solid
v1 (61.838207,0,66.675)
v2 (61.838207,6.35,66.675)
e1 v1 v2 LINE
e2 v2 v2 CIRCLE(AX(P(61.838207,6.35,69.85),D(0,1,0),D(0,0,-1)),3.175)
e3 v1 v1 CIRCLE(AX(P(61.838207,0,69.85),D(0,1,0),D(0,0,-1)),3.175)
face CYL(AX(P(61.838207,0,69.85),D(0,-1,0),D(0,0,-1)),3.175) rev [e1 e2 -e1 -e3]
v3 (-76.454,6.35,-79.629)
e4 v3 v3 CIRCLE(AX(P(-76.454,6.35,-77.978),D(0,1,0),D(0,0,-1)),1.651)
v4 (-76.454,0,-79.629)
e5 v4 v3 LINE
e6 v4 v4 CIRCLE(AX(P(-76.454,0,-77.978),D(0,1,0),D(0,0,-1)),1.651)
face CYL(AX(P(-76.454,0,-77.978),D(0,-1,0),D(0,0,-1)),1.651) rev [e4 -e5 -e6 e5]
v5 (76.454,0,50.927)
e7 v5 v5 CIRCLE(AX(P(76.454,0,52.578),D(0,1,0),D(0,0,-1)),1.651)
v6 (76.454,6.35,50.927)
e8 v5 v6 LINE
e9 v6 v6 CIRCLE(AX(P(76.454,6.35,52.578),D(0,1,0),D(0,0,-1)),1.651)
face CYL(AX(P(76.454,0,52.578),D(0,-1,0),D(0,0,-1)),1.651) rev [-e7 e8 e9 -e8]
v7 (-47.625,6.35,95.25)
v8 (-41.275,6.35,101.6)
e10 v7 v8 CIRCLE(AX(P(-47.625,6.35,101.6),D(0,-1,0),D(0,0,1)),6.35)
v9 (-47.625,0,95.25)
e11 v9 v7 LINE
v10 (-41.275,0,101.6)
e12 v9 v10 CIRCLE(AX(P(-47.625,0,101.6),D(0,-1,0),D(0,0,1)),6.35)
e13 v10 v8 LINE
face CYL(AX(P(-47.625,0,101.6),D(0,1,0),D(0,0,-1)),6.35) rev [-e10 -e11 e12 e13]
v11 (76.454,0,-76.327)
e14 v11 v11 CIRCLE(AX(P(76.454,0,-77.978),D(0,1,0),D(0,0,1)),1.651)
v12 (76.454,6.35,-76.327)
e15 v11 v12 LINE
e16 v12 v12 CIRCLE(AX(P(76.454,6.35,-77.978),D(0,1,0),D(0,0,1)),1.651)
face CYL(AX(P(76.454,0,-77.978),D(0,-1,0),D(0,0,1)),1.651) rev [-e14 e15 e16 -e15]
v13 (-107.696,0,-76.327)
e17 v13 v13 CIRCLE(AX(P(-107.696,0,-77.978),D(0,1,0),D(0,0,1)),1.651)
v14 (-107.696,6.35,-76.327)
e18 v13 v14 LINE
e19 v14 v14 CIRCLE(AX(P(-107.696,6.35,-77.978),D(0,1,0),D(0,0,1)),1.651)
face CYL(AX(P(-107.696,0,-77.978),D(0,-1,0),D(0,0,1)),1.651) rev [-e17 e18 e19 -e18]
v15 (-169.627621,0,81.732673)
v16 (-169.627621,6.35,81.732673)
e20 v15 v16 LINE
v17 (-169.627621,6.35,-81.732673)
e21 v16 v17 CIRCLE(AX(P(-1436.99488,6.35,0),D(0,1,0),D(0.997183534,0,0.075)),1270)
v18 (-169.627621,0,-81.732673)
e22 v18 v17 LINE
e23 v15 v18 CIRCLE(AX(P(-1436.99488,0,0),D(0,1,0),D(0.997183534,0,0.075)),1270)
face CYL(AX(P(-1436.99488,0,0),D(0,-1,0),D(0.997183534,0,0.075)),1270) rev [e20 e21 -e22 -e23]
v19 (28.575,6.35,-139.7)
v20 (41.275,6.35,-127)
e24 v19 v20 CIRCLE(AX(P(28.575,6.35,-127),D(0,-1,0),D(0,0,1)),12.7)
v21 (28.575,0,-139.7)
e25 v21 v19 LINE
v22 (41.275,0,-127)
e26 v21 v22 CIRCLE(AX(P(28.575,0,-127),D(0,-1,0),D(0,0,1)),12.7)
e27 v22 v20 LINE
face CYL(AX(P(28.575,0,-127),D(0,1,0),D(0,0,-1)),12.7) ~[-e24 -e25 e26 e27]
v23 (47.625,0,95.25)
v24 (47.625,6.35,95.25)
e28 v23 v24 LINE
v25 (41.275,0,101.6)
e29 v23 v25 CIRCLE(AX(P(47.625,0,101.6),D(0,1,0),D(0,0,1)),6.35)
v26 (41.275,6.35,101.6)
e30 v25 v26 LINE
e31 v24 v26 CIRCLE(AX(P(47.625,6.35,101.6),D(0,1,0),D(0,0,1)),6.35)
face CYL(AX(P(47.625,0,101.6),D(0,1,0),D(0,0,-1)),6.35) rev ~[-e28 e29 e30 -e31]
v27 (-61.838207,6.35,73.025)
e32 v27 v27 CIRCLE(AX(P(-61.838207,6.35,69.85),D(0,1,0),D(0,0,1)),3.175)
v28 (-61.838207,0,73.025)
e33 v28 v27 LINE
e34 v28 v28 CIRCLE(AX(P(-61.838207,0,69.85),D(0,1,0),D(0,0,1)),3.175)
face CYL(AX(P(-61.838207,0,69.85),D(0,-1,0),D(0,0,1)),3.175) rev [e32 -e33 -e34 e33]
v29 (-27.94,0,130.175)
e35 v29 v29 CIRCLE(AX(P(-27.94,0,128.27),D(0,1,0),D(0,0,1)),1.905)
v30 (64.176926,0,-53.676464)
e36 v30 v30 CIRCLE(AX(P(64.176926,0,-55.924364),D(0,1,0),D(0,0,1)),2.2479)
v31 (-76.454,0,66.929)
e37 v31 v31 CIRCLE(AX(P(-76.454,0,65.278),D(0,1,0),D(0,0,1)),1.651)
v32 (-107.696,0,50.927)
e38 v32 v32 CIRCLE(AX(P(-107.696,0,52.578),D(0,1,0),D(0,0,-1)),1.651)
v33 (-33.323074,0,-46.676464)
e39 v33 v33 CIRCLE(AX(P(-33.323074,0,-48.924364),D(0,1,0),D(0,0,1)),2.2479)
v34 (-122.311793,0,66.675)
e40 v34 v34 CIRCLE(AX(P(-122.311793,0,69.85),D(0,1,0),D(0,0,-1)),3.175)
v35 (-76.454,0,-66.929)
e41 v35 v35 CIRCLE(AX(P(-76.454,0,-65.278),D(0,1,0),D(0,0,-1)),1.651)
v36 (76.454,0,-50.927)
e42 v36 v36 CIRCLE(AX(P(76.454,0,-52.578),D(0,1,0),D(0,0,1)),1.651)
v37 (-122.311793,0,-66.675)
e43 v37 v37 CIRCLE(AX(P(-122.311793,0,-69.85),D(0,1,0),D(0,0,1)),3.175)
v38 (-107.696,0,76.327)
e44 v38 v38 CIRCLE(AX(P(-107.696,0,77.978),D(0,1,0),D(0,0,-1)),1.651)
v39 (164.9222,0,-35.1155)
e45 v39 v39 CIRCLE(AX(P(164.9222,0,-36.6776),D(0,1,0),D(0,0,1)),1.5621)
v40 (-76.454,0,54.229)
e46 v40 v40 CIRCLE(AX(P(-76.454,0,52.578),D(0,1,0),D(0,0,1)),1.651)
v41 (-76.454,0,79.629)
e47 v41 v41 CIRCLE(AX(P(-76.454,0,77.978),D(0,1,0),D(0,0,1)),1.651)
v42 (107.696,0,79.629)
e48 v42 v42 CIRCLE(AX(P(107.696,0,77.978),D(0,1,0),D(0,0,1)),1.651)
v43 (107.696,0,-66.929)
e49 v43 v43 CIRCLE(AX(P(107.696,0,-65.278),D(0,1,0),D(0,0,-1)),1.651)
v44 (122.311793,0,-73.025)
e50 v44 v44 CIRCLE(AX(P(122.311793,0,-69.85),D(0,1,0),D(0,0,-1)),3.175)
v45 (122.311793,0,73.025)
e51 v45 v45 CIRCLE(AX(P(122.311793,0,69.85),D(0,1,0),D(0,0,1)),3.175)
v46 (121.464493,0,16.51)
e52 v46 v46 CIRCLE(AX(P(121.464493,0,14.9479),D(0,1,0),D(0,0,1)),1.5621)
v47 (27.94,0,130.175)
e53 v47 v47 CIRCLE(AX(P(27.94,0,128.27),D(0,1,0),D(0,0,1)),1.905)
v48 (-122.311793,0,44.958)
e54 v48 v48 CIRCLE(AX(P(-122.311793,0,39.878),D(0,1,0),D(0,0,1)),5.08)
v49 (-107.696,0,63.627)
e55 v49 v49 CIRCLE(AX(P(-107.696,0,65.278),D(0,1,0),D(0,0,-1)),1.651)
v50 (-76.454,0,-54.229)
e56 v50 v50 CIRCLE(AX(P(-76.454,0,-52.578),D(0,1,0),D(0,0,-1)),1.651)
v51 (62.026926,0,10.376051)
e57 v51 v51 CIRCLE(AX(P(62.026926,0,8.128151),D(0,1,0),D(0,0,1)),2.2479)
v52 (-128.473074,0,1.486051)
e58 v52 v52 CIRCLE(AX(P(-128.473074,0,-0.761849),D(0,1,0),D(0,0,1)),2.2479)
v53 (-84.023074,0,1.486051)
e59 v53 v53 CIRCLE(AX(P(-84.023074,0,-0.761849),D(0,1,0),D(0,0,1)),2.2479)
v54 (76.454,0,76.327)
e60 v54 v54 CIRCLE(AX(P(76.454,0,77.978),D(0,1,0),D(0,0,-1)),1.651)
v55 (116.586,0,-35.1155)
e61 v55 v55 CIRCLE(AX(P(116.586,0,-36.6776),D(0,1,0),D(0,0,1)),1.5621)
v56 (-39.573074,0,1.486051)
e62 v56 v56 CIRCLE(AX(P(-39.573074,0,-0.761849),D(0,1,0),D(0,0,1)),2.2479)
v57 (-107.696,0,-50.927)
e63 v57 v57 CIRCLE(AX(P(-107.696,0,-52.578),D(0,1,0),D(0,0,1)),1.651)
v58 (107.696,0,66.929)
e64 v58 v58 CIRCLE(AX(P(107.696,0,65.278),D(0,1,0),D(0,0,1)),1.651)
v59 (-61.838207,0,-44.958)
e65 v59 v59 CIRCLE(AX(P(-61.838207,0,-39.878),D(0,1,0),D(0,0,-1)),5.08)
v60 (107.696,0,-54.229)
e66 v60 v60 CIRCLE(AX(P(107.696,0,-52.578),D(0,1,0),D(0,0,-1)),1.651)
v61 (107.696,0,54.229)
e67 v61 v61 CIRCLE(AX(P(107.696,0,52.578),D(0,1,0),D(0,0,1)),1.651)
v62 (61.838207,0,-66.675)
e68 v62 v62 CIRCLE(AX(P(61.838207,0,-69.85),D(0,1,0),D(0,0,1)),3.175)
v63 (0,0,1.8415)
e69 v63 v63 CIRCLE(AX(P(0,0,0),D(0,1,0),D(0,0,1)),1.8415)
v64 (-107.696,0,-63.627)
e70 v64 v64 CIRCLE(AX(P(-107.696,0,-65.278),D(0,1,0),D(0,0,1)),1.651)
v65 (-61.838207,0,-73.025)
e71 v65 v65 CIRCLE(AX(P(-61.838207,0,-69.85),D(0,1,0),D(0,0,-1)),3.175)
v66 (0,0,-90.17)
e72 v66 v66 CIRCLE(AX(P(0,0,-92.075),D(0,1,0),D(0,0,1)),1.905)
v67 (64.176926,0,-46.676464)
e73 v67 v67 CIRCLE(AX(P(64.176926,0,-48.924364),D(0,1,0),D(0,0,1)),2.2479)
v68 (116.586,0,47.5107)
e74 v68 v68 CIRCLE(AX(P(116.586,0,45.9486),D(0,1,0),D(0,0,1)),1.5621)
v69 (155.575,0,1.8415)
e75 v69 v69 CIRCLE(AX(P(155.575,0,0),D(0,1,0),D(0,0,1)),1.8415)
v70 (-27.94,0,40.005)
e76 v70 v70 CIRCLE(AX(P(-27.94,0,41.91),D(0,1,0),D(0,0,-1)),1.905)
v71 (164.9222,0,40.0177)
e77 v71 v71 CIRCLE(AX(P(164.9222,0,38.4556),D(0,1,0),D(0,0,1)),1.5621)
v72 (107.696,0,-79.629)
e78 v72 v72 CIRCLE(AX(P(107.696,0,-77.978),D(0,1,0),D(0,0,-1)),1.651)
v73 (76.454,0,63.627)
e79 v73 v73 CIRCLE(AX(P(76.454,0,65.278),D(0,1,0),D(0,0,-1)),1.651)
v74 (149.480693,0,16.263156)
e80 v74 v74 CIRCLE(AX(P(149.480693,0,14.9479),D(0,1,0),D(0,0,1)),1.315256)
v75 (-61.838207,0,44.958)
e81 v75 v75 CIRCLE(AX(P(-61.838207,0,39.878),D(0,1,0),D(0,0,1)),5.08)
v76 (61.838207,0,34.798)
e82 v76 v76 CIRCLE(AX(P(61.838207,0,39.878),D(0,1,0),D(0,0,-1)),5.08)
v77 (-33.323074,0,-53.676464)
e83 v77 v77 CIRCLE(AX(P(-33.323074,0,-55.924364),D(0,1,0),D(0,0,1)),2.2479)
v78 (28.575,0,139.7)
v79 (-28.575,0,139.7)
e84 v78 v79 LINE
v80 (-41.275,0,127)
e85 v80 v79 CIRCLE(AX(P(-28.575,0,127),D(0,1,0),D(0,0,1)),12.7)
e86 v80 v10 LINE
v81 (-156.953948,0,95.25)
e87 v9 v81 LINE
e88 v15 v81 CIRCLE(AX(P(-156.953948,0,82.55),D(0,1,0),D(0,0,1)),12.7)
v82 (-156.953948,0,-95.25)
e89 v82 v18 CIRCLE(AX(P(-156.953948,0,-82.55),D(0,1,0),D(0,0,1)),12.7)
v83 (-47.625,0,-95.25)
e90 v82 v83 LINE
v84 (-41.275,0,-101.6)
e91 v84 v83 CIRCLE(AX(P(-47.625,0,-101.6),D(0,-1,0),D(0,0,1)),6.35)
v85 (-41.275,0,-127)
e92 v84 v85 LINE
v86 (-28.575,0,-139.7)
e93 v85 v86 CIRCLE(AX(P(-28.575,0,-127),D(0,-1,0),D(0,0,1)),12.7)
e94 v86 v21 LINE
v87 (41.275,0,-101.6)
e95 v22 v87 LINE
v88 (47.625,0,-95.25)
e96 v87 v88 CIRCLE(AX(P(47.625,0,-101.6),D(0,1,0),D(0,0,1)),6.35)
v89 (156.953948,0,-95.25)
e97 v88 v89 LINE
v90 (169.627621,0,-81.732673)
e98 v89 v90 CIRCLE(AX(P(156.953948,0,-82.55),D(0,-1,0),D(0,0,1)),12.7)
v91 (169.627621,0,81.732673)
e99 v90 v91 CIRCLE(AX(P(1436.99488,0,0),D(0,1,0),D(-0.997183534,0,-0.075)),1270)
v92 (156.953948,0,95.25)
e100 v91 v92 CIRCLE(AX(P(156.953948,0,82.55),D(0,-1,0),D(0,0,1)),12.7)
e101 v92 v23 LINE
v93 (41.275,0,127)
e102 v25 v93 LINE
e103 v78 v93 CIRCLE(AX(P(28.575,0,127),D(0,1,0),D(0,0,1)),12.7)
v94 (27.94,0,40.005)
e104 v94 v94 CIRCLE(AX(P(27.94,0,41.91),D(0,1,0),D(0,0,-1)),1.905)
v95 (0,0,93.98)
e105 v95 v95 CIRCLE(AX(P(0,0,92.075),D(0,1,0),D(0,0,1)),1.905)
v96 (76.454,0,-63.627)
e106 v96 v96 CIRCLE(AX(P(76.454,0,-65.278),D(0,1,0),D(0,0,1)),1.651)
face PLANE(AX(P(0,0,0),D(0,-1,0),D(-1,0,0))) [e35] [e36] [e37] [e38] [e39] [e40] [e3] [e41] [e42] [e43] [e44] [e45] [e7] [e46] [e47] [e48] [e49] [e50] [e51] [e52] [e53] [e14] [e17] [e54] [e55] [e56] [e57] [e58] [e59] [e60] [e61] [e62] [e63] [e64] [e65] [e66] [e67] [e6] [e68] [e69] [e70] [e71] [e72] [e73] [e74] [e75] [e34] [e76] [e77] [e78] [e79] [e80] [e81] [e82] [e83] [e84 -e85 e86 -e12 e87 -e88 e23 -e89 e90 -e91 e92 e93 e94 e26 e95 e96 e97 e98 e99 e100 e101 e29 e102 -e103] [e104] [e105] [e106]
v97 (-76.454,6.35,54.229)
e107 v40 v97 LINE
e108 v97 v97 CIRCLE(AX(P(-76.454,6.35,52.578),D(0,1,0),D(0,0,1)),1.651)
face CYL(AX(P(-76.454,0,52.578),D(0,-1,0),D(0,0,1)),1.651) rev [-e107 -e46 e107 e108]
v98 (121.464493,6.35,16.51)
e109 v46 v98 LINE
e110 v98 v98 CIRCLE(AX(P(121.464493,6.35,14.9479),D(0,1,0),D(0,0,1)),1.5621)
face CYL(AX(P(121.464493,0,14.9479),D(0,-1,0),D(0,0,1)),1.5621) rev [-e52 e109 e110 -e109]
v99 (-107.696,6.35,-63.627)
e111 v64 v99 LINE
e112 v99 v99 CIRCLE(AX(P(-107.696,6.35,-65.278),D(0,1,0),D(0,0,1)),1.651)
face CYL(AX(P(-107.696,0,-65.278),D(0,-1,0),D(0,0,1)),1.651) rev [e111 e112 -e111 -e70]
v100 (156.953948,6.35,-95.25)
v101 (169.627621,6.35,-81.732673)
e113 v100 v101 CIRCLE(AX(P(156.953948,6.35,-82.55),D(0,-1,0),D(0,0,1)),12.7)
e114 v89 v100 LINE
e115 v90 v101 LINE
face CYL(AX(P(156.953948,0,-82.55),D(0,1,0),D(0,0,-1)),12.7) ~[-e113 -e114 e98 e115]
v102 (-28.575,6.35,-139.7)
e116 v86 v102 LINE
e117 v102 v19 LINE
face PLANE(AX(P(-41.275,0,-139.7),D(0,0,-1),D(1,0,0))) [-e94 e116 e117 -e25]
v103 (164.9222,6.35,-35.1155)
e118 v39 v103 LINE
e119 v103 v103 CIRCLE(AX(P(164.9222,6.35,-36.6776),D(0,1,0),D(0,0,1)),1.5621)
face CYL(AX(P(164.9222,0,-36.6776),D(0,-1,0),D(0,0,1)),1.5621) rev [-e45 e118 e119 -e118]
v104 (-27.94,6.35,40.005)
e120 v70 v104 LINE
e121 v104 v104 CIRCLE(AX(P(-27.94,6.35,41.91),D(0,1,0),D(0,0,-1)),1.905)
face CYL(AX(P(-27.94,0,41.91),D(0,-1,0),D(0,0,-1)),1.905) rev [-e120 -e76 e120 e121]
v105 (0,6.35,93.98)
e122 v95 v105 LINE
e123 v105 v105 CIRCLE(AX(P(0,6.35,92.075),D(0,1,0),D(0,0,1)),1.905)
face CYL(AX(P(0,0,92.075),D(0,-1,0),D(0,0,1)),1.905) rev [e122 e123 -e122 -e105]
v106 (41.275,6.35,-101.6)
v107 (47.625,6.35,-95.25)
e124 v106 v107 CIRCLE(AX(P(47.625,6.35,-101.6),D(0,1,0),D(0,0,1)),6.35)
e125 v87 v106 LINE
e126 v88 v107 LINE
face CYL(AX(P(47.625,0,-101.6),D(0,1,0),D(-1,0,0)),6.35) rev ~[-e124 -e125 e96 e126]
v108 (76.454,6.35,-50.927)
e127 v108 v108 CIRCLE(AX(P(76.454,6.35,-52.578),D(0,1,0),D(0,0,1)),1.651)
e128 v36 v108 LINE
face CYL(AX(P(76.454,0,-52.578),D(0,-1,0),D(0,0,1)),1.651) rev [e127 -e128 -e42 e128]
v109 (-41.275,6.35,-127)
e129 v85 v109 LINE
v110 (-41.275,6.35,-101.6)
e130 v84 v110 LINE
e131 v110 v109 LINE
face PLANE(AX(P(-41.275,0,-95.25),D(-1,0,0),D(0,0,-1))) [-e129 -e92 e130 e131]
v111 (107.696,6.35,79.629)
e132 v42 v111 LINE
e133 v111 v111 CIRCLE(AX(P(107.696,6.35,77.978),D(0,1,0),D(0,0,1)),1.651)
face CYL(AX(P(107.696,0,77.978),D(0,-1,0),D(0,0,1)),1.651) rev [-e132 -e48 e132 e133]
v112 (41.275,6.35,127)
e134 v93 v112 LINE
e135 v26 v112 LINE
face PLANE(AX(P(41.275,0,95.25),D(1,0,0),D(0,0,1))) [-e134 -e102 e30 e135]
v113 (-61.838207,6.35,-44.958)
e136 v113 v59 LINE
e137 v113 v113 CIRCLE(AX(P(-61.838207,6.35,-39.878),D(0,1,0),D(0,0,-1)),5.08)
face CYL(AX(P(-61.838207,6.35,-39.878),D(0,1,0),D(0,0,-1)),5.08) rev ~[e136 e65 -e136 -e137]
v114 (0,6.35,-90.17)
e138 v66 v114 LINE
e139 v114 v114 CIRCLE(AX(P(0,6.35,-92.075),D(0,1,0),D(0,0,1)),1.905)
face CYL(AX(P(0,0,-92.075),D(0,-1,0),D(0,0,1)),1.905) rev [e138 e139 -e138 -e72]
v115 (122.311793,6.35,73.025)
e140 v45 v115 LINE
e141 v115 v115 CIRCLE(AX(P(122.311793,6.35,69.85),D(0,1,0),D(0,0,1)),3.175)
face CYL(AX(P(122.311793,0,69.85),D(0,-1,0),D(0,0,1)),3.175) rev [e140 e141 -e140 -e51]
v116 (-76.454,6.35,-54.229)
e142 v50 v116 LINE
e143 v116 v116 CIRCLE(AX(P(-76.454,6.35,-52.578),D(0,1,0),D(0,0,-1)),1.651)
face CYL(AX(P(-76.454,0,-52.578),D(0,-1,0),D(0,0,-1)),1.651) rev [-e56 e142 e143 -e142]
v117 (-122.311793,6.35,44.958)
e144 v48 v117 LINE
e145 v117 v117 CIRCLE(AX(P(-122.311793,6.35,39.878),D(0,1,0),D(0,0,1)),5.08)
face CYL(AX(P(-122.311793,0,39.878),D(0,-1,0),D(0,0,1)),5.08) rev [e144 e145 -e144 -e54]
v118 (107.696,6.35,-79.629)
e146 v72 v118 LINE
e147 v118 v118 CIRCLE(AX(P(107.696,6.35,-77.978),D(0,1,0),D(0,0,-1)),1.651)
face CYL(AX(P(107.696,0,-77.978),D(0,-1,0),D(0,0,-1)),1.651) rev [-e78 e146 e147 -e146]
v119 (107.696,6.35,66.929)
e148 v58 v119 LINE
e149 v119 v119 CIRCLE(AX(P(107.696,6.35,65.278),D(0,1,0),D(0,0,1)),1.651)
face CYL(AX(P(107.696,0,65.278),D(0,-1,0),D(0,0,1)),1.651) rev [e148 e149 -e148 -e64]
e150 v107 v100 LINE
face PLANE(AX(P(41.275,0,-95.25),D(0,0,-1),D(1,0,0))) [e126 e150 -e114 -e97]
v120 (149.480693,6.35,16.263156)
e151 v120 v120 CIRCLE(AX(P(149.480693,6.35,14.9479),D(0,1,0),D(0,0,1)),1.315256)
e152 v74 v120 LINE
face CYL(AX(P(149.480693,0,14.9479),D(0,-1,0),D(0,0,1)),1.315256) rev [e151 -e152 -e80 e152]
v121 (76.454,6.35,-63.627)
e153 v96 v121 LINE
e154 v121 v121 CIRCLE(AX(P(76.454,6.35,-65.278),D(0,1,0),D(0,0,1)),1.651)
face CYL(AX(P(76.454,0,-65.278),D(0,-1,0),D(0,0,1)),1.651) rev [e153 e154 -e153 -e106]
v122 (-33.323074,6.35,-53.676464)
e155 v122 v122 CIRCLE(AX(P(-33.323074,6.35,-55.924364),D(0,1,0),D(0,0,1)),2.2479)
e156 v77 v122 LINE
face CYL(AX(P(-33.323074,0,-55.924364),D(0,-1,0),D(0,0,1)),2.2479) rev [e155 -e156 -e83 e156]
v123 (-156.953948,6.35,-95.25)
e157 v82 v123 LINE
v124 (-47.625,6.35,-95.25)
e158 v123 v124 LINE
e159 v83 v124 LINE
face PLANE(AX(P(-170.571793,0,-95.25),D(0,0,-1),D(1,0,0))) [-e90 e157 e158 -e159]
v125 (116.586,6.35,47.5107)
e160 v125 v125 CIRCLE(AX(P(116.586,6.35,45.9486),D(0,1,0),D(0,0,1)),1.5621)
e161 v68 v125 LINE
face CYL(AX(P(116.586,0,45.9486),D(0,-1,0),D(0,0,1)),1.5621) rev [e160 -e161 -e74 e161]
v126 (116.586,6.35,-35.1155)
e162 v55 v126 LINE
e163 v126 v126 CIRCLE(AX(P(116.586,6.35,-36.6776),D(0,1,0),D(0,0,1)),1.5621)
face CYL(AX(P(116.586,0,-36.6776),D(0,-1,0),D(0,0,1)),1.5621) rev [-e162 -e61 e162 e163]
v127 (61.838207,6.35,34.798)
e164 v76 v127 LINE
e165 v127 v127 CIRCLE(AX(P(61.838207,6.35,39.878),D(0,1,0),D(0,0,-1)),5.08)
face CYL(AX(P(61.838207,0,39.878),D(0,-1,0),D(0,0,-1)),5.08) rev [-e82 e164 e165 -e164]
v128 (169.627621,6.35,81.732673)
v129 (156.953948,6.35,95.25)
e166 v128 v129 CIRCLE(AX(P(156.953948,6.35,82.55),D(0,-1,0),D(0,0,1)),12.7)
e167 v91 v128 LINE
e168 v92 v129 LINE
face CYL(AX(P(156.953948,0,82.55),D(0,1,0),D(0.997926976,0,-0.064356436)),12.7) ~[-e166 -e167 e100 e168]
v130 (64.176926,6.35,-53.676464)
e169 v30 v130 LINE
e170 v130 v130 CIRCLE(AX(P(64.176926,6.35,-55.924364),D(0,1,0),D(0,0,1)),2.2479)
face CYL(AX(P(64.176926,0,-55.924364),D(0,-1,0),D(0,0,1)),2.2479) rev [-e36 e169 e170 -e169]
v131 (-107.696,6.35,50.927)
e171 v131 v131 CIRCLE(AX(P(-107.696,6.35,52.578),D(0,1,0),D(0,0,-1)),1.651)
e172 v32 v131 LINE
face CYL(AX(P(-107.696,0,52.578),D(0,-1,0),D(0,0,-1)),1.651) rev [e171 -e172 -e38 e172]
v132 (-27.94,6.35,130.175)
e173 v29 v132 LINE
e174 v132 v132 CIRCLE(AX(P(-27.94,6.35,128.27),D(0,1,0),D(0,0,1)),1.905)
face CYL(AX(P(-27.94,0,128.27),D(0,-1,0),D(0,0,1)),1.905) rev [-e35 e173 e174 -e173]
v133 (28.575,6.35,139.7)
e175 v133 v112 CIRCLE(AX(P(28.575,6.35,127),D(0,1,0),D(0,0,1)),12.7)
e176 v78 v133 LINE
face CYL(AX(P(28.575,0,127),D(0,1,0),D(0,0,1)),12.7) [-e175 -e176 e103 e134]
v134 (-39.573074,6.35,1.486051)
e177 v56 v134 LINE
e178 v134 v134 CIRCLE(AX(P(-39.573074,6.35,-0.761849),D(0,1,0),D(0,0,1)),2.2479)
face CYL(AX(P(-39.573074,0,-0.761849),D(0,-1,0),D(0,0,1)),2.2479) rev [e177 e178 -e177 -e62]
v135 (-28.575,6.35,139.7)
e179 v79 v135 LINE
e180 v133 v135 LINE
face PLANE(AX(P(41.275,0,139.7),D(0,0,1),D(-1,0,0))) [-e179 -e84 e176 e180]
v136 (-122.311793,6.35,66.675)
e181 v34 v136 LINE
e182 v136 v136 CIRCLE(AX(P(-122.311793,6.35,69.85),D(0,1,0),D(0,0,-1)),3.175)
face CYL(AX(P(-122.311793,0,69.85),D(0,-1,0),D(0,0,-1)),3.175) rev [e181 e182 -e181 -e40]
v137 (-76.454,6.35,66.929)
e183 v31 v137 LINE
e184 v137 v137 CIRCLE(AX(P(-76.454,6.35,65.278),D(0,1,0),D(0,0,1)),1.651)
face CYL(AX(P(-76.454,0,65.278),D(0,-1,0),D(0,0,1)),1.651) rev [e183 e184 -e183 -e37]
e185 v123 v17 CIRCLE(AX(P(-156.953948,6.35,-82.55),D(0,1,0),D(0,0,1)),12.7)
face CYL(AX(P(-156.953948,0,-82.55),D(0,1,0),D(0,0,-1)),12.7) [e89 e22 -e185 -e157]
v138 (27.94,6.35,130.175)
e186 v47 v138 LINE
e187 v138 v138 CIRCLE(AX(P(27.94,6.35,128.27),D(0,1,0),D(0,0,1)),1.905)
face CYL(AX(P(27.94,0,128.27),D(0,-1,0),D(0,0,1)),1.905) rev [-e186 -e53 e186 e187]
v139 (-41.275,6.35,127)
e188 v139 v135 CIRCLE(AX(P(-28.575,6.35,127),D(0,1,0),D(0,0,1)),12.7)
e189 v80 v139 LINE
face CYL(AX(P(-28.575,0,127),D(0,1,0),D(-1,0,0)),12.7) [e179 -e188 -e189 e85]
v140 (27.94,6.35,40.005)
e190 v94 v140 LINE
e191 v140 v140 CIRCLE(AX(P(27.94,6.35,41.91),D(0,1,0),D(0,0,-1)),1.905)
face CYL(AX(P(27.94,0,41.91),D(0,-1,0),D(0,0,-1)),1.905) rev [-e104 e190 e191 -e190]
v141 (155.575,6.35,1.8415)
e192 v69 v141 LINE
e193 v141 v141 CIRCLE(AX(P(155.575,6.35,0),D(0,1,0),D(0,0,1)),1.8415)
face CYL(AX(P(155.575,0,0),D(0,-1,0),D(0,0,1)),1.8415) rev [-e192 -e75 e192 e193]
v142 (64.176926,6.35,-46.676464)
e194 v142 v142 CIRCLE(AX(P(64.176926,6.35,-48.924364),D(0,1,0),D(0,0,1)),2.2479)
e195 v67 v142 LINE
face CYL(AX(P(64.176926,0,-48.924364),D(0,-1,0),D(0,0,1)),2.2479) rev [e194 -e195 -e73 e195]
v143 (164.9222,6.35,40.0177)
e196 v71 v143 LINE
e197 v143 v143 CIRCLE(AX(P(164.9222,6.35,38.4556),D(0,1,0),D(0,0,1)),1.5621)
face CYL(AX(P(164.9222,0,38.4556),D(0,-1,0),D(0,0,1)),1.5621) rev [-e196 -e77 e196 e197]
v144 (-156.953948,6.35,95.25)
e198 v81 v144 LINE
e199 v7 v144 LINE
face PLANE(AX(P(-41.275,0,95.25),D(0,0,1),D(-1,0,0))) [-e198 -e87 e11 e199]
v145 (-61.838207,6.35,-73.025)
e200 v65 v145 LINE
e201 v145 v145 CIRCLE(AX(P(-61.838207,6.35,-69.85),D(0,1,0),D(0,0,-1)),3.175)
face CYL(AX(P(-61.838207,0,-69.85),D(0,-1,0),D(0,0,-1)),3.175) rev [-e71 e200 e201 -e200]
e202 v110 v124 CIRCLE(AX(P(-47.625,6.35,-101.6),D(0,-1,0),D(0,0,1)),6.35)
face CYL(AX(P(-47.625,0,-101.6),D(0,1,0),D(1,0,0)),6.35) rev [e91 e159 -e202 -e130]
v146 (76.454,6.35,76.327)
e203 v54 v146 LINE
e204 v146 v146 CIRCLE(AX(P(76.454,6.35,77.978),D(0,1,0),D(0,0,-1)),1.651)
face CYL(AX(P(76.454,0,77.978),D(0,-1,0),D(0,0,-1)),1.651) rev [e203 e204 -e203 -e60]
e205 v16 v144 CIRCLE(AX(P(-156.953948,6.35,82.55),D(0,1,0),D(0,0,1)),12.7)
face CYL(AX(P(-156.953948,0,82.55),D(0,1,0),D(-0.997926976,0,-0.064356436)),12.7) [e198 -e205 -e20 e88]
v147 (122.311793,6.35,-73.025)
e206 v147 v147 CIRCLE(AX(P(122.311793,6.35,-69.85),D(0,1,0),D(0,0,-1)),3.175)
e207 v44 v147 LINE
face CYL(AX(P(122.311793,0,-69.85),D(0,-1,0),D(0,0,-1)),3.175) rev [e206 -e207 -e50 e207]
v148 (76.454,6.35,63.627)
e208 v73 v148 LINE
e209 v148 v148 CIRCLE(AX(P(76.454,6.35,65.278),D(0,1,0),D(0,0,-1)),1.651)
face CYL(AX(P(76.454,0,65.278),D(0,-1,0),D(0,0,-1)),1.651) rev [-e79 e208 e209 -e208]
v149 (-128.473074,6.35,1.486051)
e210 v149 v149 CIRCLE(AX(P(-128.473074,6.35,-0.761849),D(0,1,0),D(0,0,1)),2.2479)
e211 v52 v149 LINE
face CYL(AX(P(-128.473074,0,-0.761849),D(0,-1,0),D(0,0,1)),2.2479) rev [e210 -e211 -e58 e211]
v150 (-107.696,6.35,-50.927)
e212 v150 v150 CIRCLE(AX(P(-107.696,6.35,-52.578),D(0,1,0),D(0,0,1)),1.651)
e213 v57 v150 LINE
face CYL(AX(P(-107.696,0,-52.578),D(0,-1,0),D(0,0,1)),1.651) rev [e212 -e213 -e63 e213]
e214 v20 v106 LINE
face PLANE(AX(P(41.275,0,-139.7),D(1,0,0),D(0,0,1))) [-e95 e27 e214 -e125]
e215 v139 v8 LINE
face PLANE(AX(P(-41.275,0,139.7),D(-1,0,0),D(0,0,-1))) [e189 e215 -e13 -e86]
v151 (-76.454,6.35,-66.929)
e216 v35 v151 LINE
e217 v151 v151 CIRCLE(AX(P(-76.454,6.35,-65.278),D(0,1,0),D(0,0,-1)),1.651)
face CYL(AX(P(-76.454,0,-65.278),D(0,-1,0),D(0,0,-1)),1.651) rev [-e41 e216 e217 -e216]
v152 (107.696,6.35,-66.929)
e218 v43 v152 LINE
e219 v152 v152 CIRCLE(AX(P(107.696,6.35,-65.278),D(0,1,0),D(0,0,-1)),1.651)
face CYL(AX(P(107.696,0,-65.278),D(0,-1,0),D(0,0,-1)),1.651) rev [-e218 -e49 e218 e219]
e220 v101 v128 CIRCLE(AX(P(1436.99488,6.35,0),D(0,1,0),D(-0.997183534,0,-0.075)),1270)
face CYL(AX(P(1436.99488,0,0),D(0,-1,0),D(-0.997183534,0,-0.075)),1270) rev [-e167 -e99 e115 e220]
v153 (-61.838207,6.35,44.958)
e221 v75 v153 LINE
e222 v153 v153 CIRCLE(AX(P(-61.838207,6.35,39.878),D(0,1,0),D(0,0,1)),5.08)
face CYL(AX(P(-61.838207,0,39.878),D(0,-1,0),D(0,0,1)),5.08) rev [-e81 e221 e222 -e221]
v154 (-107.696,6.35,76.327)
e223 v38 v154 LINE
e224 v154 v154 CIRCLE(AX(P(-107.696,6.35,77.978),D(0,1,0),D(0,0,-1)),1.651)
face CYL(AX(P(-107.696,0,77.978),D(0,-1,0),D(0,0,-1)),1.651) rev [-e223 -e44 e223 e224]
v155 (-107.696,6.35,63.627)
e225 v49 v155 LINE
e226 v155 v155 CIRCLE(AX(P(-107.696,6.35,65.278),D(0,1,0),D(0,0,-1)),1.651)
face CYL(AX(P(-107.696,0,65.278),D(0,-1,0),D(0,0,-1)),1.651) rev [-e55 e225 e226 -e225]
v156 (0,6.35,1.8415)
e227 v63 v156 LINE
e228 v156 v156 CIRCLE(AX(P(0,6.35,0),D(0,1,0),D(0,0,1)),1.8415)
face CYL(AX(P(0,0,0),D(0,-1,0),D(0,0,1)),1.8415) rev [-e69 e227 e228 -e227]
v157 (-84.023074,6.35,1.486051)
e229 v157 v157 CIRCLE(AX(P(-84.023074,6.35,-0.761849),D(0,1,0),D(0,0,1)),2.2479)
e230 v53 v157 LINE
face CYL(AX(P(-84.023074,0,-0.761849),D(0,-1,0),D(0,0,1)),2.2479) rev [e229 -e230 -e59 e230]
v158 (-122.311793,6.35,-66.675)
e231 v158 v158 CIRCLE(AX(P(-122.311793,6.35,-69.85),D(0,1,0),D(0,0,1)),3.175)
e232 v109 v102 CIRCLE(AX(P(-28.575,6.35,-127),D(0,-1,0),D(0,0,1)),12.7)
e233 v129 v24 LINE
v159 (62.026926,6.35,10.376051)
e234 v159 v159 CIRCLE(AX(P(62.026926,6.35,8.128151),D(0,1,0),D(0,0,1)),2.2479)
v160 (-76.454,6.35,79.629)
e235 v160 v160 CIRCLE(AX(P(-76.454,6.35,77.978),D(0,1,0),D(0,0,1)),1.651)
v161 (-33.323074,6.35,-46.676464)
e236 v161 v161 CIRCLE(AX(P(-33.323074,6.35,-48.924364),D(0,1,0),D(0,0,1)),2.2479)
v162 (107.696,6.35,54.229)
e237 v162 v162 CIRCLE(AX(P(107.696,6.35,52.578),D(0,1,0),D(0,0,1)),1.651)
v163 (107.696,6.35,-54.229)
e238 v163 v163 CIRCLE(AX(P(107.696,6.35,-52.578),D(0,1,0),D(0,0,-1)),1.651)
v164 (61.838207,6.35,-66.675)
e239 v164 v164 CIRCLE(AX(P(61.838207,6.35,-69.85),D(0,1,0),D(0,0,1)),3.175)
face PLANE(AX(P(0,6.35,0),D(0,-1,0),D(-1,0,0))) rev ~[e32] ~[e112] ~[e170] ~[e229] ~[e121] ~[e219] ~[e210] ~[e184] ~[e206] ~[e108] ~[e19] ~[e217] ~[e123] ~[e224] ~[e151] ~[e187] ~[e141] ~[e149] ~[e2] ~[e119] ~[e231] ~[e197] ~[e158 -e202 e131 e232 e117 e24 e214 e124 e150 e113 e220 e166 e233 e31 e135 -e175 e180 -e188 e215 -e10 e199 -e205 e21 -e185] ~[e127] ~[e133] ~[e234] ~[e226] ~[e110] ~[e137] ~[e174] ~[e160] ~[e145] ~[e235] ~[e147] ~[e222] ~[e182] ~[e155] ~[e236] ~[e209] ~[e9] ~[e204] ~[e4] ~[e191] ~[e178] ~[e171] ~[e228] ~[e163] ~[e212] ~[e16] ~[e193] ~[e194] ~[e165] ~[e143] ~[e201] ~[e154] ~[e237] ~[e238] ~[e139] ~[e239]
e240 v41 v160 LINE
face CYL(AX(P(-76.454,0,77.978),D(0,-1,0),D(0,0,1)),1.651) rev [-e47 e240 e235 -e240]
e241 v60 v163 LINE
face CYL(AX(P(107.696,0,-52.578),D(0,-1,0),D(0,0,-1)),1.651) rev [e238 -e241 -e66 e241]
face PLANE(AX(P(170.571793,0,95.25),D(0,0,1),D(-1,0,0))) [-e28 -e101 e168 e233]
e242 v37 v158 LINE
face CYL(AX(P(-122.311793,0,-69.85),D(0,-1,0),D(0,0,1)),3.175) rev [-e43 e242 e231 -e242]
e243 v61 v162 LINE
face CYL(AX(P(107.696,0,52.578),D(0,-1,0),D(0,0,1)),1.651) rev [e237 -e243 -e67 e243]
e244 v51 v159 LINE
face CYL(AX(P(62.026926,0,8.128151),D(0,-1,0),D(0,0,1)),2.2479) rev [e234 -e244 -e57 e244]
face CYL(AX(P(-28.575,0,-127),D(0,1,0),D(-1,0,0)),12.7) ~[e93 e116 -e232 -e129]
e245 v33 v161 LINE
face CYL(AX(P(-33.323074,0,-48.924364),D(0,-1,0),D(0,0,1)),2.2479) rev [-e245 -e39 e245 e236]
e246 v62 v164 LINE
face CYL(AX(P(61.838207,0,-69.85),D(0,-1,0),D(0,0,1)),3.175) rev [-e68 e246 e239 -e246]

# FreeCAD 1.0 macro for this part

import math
import FreeCAD as App
import Part
import Sketcher
from FreeCAD import Vector
Q = App.Units.Quantity


def edges_at(feature, points):
    """Names of the edges that pass closest to the given points."""
    edges = feature.Shape.Edges
    near = lambda p: min(range(len(edges)), key=lambda i: edges[i].distToShape(Part.Vertex(*p))[0])
    return sorted({f"Edge{near(p) + 1}" for p in points})

doc = App.newDocument("Part")
body = doc.addObject("PartDesign::Body", "Body")

sketch1 = body.newObject("Sketcher::SketchObject", "Sketch")
sketch1.AttachmentSupport = (doc.getObject("XZ_Plane"), [""])
sketch1.MapMode = "FlatFace"
sketch1.addGeometry(Part.LineSegment(Vector(-41.275, -139.7, 0), Vector(-41.275, -95.25, 0)), False)
sketch1.addGeometry(Part.LineSegment(Vector(-41.275, -95.25, 0), Vector(-170.571793, -95.25, 0)), False)
sketch1.addGeometry(Part.ArcOfCircle(Part.Circle(Vector(-1436.99488, 0, 0), Vector(0, 0, 1), 1270), math.radians(-4.301222), math.radians(4.301222)), False)
sketch1.addGeometry(Part.LineSegment(Vector(-170.571793, 95.25, 0), Vector(-41.275, 95.25, 0)), False)
sketch1.addGeometry(Part.LineSegment(Vector(-41.275, 95.25, 0), Vector(-41.275, 139.7, 0)), False)
sketch1.addGeometry(Part.LineSegment(Vector(-41.275, 139.7, 0), Vector(41.275, 139.7, 0)), False)
sketch1.addGeometry(Part.LineSegment(Vector(41.275, 139.7, 0), Vector(41.275, 95.25, 0)), False)
sketch1.addGeometry(Part.LineSegment(Vector(41.275, 95.25, 0), Vector(170.571793, 95.25, 0)), False)
sketch1.addGeometry(Part.ArcOfCircle(Part.Circle(Vector(1436.99488, 0, 0), Vector(0, 0, 1), 1270), math.radians(175.698778), math.radians(184.301222)), False)
sketch1.addGeometry(Part.LineSegment(Vector(170.571793, -95.25, 0), Vector(41.275, -95.25, 0)), False)
sketch1.addGeometry(Part.LineSegment(Vector(41.275, -95.25, 0), Vector(41.275, -139.7, 0)), False)
sketch1.addGeometry(Part.LineSegment(Vector(41.275, -139.7, 0), Vector(-41.275, -139.7, 0)), False)
sketch1.addGeometry(Part.Circle(Vector(107.696, 77.978, 0), Vector(0, 0, 1), 1.651), False)
sketch1.addGeometry(Part.Circle(Vector(27.94, 128.27, 0), Vector(0, 0, 1), 1.905), False)
sketch1.addGeometry(Part.Circle(Vector(76.454, 77.978, 0), Vector(0, 0, 1), 1.651), False)
sketch1.addGeometry(Part.Circle(Vector(122.311793, 69.85, 0), Vector(0, 0, 1), 3.175), False)
sketch1.addGeometry(Part.Circle(Vector(107.696, 65.278, 0), Vector(0, 0, 1), 1.651), False)
sketch1.addGeometry(Part.Circle(Vector(107.696, 52.578, 0), Vector(0, 0, 1), 1.651), False)
sketch1.addGeometry(Part.Circle(Vector(164.9222, 38.4556, 0), Vector(0, 0, 1), 1.5621), False)
sketch1.addGeometry(Part.Circle(Vector(116.586, 45.9486, 0), Vector(0, 0, 1), 1.5621), False)
sketch1.addGeometry(Part.Circle(Vector(76.454, 65.278, 0), Vector(0, 0, 1), 1.651), False)
sketch1.addGeometry(Part.Circle(Vector(61.838207, 69.85, 0), Vector(0, 0, 1), 3.175), False)
sketch1.addGeometry(Part.Circle(Vector(76.454, 52.578, 0), Vector(0, 0, 1), 1.651), False)
sketch1.addGeometry(Part.Circle(Vector(61.838207, 39.878, 0), Vector(0, 0, 1), 5.08), False)
sketch1.addGeometry(Part.Circle(Vector(27.94, 41.91, 0), Vector(0, 0, 1), 1.905), False)
sketch1.addGeometry(Part.Circle(Vector(-27.94, 128.27, 0), Vector(0, 0, 1), 1.905), False)
sketch1.addGeometry(Part.Circle(Vector(0, 92.075, 0), Vector(0, 0, 1), 1.905), False)
sketch1.addGeometry(Part.Circle(Vector(-76.454, 77.978, 0), Vector(0, 0, 1), 1.651), False)
sketch1.addGeometry(Part.Circle(Vector(-107.696, 77.978, 0), Vector(0, 0, 1), 1.651), False)
sketch1.addGeometry(Part.Circle(Vector(-27.94, 41.91, 0), Vector(0, 0, 1), 1.905), False)
sketch1.addGeometry(Part.Circle(Vector(-61.838207, 69.85, 0), Vector(0, 0, 1), 3.175), False)
sketch1.addGeometry(Part.Circle(Vector(-76.454, 65.278, 0), Vector(0, 0, 1), 1.651), False)
sketch1.addGeometry(Part.Circle(Vector(-76.454, 52.578, 0), Vector(0, 0, 1), 1.651), False)
sketch1.addGeometry(Part.Circle(Vector(-107.696, 65.278, 0), Vector(0, 0, 1), 1.651), False)
sketch1.addGeometry(Part.Circle(Vector(-122.311793, 69.85, 0), Vector(0, 0, 1), 3.175), False)
sketch1.addGeometry(Part.Circle(Vector(-107.696, 52.578, 0), Vector(0, 0, 1), 1.651), False)
sketch1.addGeometry(Part.Circle(Vector(-61.838207, 39.878, 0), Vector(0, 0, 1), 5.08), False)
sketch1.addGeometry(Part.Circle(Vector(-122.311793, 39.878, 0), Vector(0, 0, 1), 5.08), False)
sketch1.addGeometry(Part.Circle(Vector(149.480693, 14.9479, 0), Vector(0, 0, 1), 1.315256), False)
sketch1.addGeometry(Part.Circle(Vector(155.575, 0, 0), Vector(0, 0, 1), 1.8415), False)
sketch1.addGeometry(Part.Circle(Vector(121.464493, 14.9479, 0), Vector(0, 0, 1), 1.5621), False)
sketch1.addGeometry(Part.Circle(Vector(164.9222, -36.6776, 0), Vector(0, 0, 1), 1.5621), False)
sketch1.addGeometry(Part.Circle(Vector(116.586, -36.6776, 0), Vector(0, 0, 1), 1.5621), False)
sketch1.addGeometry(Part.Circle(Vector(62.026926, 8.128151, 0), Vector(0, 0, 1), 2.2479), False)
sketch1.addGeometry(Part.Circle(Vector(107.696, -52.578, 0), Vector(0, 0, 1), 1.651), False)
sketch1.addGeometry(Part.Circle(Vector(107.696, -65.278, 0), Vector(0, 0, 1), 1.651), False)
sketch1.addGeometry(Part.Circle(Vector(122.311793, -69.85, 0), Vector(0, 0, 1), 3.175), False)
sketch1.addGeometry(Part.Circle(Vector(107.696, -77.978, 0), Vector(0, 0, 1), 1.651), False)
sketch1.addGeometry(Part.Circle(Vector(64.176926, -48.924364, 0), Vector(0, 0, 1), 2.2479), False)
sketch1.addGeometry(Part.Circle(Vector(76.454, -52.578, 0), Vector(0, 0, 1), 1.651), False)
sketch1.addGeometry(Part.Circle(Vector(76.454, -65.278, 0), Vector(0, 0, 1), 1.651), False)
sketch1.addGeometry(Part.Circle(Vector(64.176926, -55.924364, 0), Vector(0, 0, 1), 2.2479), False)
sketch1.addGeometry(Part.Circle(Vector(76.454, -77.978, 0), Vector(0, 0, 1), 1.651), False)
sketch1.addGeometry(Part.Circle(Vector(61.838207, -69.85, 0), Vector(0, 0, 1), 3.175), False)
sketch1.addGeometry(Part.Circle(Vector(0, 0, 0), Vector(0, 0, 1), 1.8415), False)
sketch1.addGeometry(Part.Circle(Vector(-39.573074, -0.761849, 0), Vector(0, 0, 1), 2.2479), False)
sketch1.addGeometry(Part.Circle(Vector(-84.023074, -0.761849, 0), Vector(0, 0, 1), 2.2479), False)
sketch1.addGeometry(Part.Circle(Vector(-128.473074, -0.761849, 0), Vector(0, 0, 1), 2.2479), False)
sketch1.addGeometry(Part.Circle(Vector(-33.323074, -48.924364, 0), Vector(0, 0, 1), 2.2479), False)
sketch1.addGeometry(Part.Circle(Vector(-33.323074, -55.924364, 0), Vector(0, 0, 1), 2.2479), False)
sketch1.addGeometry(Part.Circle(Vector(0, -92.075, 0), Vector(0, 0, 1), 1.905), False)
sketch1.addGeometry(Part.Circle(Vector(-76.454, -52.578, 0), Vector(0, 0, 1), 1.651), False)
sketch1.addGeometry(Part.Circle(Vector(-76.454, -65.278, 0), Vector(0, 0, 1), 1.651), False)
sketch1.addGeometry(Part.Circle(Vector(-107.696, -52.578, 0), Vector(0, 0, 1), 1.651), False)
sketch1.addGeometry(Part.Circle(Vector(-107.696, -65.278, 0), Vector(0, 0, 1), 1.651), False)
sketch1.addGeometry(Part.Circle(Vector(-61.838207, -69.85, 0), Vector(0, 0, 1), 3.175), False)
sketch1.addGeometry(Part.Circle(Vector(-76.454, -77.978, 0), Vector(0, 0, 1), 1.651), False)
sketch1.addGeometry(Part.Circle(Vector(-107.696, -77.978, 0), Vector(0, 0, 1), 1.651), False)
sketch1.addGeometry(Part.Circle(Vector(-122.311793, -69.85, 0), Vector(0, 0, 1), 3.175), False)
sketch1.addConstraint(Sketcher.Constraint("Coincident", 0, 2, 1, 1))
sketch1.addConstraint(Sketcher.Constraint("Coincident", 1, 2, 2, 1))
sketch1.addConstraint(Sketcher.Constraint("Coincident", 2, 2, 3, 1))
sketch1.addConstraint(Sketcher.Constraint("Coincident", 3, 2, 4, 1))
sketch1.addConstraint(Sketcher.Constraint("Coincident", 4, 2, 5, 1))
sketch1.addConstraint(Sketcher.Constraint("Coincident", 5, 2, 6, 1))
sketch1.addConstraint(Sketcher.Constraint("Coincident", 6, 2, 7, 1))
sketch1.addConstraint(Sketcher.Constraint("Coincident", 7, 2, 8, 1))
sketch1.addConstraint(Sketcher.Constraint("Coincident", 8, 2, 9, 1))
sketch1.addConstraint(Sketcher.Constraint("Coincident", 9, 2, 10, 1))
sketch1.addConstraint(Sketcher.Constraint("Coincident", 10, 2, 11, 1))
sketch1.addConstraint(Sketcher.Constraint("Coincident", 11, 2, 0, 1))
sketch1.addConstraint(Sketcher.Constraint("Vertical", 0))
sketch1.addConstraint(Sketcher.Constraint("Horizontal", 1))
sketch1.addConstraint(Sketcher.Constraint("Horizontal", 3))
sketch1.addConstraint(Sketcher.Constraint("Vertical", 4))
sketch1.addConstraint(Sketcher.Constraint("Horizontal", 5))
sketch1.addConstraint(Sketcher.Constraint("Vertical", 6))
sketch1.addConstraint(Sketcher.Constraint("Horizontal", 7))
sketch1.addConstraint(Sketcher.Constraint("Horizontal", 9))
sketch1.addConstraint(Sketcher.Constraint("Vertical", 10))
sketch1.addConstraint(Sketcher.Constraint("Horizontal", 11))
sketch1.addConstraint(Sketcher.Constraint("Coincident", 54, 3, -1, 1))
sketch1.addConstraint(Sketcher.Constraint("Equal", 2, 8))
sketch1.addConstraint(Sketcher.Constraint("Equal", 12, 14))
sketch1.addConstraint(Sketcher.Constraint("Equal", 14, 16))
sketch1.addConstraint(Sketcher.Constraint("Equal", 16, 17))
sketch1.addConstraint(Sketcher.Constraint("Equal", 18, 19))
sketch1.addConstraint(Sketcher.Constraint("Equal", 17, 20))
sketch1.addConstraint(Sketcher.Constraint("Equal", 15, 21))
sketch1.addConstraint(Sketcher.Constraint("Equal", 20, 22))
sketch1.addConstraint(Sketcher.Constraint("Equal", 13, 24))
sketch1.addConstraint(Sketcher.Constraint("Equal", 24, 25))
sketch1.addConstraint(Sketcher.Constraint("Equal", 25, 26))
sketch1.addConstraint(Sketcher.Constraint("Equal", 22, 27))
sketch1.addConstraint(Sketcher.Constraint("Equal", 27, 28))
sketch1.addConstraint(Sketcher.Constraint("Equal", 26, 29))
sketch1.addConstraint(Sketcher.Constraint("Equal", 21, 30))
sketch1.addConstraint(Sketcher.Constraint("Equal", 28, 31))
sketch1.addConstraint(Sketcher.Constraint("Equal", 31, 32))
sketch1.addConstraint(Sketcher.Constraint("Equal", 32, 33))
sketch1.addConstraint(Sketcher.Constraint("Equal", 30, 34))
sketch1.addConstraint(Sketcher.Constraint("Equal", 33, 35))
sketch1.addConstraint(Sketcher.Constraint("Equal", 23, 36))
sketch1.addConstraint(Sketcher.Constraint("Equal", 36, 37))
sketch1.addConstraint(Sketcher.Constraint("Equal", 19, 40))
sketch1.addConstraint(Sketcher.Constraint("Equal", 40, 41))
sketch1.addConstraint(Sketcher.Constraint("Equal", 41, 42))
sketch1.addConstraint(Sketcher.Constraint("Equal", 35, 44))
sketch1.addConstraint(Sketcher.Constraint("Equal", 44, 45))
sketch1.addConstraint(Sketcher.Constraint("Equal", 34, 46))
sketch1.addConstraint(Sketcher.Constraint("Equal", 45, 47))
sketch1.addConstraint(Sketcher.Constraint("Equal", 43, 48))
sketch1.addConstraint(Sketcher.Constraint("Equal", 47, 49))
sketch1.addConstraint(Sketcher.Constraint("Equal", 49, 50))
sketch1.addConstraint(Sketcher.Constraint("Equal", 48, 51))
sketch1.addConstraint(Sketcher.Constraint("Equal", 50, 52))
sketch1.addConstraint(Sketcher.Constraint("Equal", 46, 53))
sketch1.addConstraint(Sketcher.Constraint("Equal", 39, 54))
sketch1.addConstraint(Sketcher.Constraint("Equal", 51, 55))
sketch1.addConstraint(Sketcher.Constraint("Equal", 55, 56))
sketch1.addConstraint(Sketcher.Constraint("Equal", 56, 57))
sketch1.addConstraint(Sketcher.Constraint("Equal", 57, 58))
sketch1.addConstraint(Sketcher.Constraint("Equal", 58, 59))
sketch1.addConstraint(Sketcher.Constraint("Equal", 29, 60))
sketch1.addConstraint(Sketcher.Constraint("Equal", 52, 61))
sketch1.addConstraint(Sketcher.Constraint("Equal", 61, 62))
sketch1.addConstraint(Sketcher.Constraint("Equal", 62, 63))
sketch1.addConstraint(Sketcher.Constraint("Equal", 63, 64))
sketch1.addConstraint(Sketcher.Constraint("Equal", 53, 65))
sketch1.addConstraint(Sketcher.Constraint("Equal", 64, 66))
sketch1.addConstraint(Sketcher.Constraint("Equal", 66, 67))
sketch1.addConstraint(Sketcher.Constraint("Equal", 65, 68))
sketch1.addConstraint(Sketcher.Constraint("Symmetric", 2, 3, 8, 3, -1, 1))
sketch1.addConstraint(Sketcher.Constraint("Symmetric", 35, 3, 44, 3, -1, 1))
sketch1.addConstraint(Sketcher.Constraint("Symmetric", 33, 3, 45, 3, -1, 1))
sketch1.addConstraint(Sketcher.Constraint("Symmetric", 34, 3, 46, 3, -1, 1))
sketch1.addConstraint(Sketcher.Constraint("Symmetric", 28, 3, 47, 3, -1, 1))
sketch1.addConstraint(Sketcher.Constraint("Symmetric", 32, 3, 49, 3, -1, 1))
sketch1.addConstraint(Sketcher.Constraint("Symmetric", 31, 3, 50, 3, -1, 1))
sketch1.addConstraint(Sketcher.Constraint("Symmetric", 27, 3, 52, 3, -1, 1))
sketch1.addConstraint(Sketcher.Constraint("Symmetric", 30, 3, 53, 3, -1, 1))
sketch1.addConstraint(Sketcher.Constraint("Symmetric", 26, 3, 60, 3, -1, 1))
sketch1.addConstraint(Sketcher.Constraint("Symmetric", 22, 3, 61, 3, -1, 1))
sketch1.addConstraint(Sketcher.Constraint("Symmetric", 20, 3, 62, 3, -1, 1))
sketch1.addConstraint(Sketcher.Constraint("Symmetric", 17, 3, 63, 3, -1, 1))
sketch1.addConstraint(Sketcher.Constraint("Symmetric", 16, 3, 64, 3, -1, 1))
sketch1.addConstraint(Sketcher.Constraint("Symmetric", 21, 3, 65, 3, -1, 1))
sketch1.addConstraint(Sketcher.Constraint("Symmetric", 14, 3, 66, 3, -1, 1))
sketch1.addConstraint(Sketcher.Constraint("Symmetric", 12, 3, 67, 3, -1, 1))
sketch1.addConstraint(Sketcher.Constraint("Symmetric", 15, 3, 68, 3, -1, 1))
sketch1.addConstraint(Sketcher.Constraint("Symmetric", 0, 2, 6, 2, -1, 1))
sketch1.addConstraint(Sketcher.Constraint("Symmetric", 3, 2, 9, 2, -1, 1))
sketch1.addConstraint(Sketcher.Constraint("Symmetric", 13, 3, 25, 3, -2))
sketch1.addConstraint(Sketcher.Constraint("Symmetric", 14, 3, 27, 3, -2))
sketch1.addConstraint(Sketcher.Constraint("Symmetric", 12, 3, 28, 3, -2))
sketch1.addConstraint(Sketcher.Constraint("Symmetric", 24, 3, 29, 3, -2))
sketch1.addConstraint(Sketcher.Constraint("Symmetric", 21, 3, 30, 3, -2))
sketch1.addConstraint(Sketcher.Constraint("Symmetric", 20, 3, 31, 3, -2))
sketch1.addConstraint(Sketcher.Constraint("Symmetric", 22, 3, 32, 3, -2))
sketch1.addConstraint(Sketcher.Constraint("Symmetric", 16, 3, 33, 3, -2))
sketch1.addConstraint(Sketcher.Constraint("Symmetric", 15, 3, 34, 3, -2))
sketch1.addConstraint(Sketcher.Constraint("Symmetric", 17, 3, 35, 3, -2))
sketch1.addConstraint(Sketcher.Constraint("Symmetric", 23, 3, 36, 3, -2))
sketch1.addConstraint(Sketcher.Constraint("Symmetric", 3, 2, 6, 2, -2))
sketch1.addConstraint(Sketcher.Constraint("PointOnObject", 2, 3, -1))
sketch1.addConstraint(Sketcher.Constraint("PointOnObject", 26, 3, -2))
sketch1.addConstraint(Sketcher.Constraint("PointOnObject", 39, 3, -1))
sketch1.addConstraint(Sketcher.Constraint("Horizontal", 12, 3, 14, 3))
sketch1.addConstraint(Sketcher.Constraint("Horizontal", 16, 3, 20, 3))
sketch1.addConstraint(Sketcher.Constraint("Horizontal", 15, 3, 21, 3))
sketch1.addConstraint(Sketcher.Constraint("Horizontal", 17, 3, 22, 3))
sketch1.addConstraint(Sketcher.Constraint("Horizontal", 36, 3, 37, 3))
sketch1.addConstraint(Sketcher.Constraint("Horizontal", 38, 3, 40, 3))
sketch1.addConstraint(Sketcher.Constraint("Horizontal", 41, 3, 42, 3))
sketch1.addConstraint(Sketcher.Constraint("Horizontal", 55, 3, 56, 3))
sketch1.addConstraint(Sketcher.Constraint("Horizontal", 56, 3, 57, 3))
sketch1.addConstraint(Sketcher.Constraint("Horizontal", 48, 3, 58, 3))
sketch1.addConstraint(Sketcher.Constraint("Horizontal", 51, 3, 59, 3))
sketch1.addConstraint(Sketcher.Constraint("Vertical", 12, 3, 16, 3))
sketch1.addConstraint(Sketcher.Constraint("Vertical", 16, 3, 17, 3))
sketch1.addConstraint(Sketcher.Constraint("Vertical", 14, 3, 20, 3))
sketch1.addConstraint(Sketcher.Constraint("Vertical", 20, 3, 22, 3))
sketch1.addConstraint(Sketcher.Constraint("Vertical", 21, 3, 23, 3))
sketch1.addConstraint(Sketcher.Constraint("Vertical", 13, 3, 24, 3))
sketch1.addConstraint(Sketcher.Constraint("Vertical", 34, 3, 37, 3))
sketch1.addConstraint(Sketcher.Constraint("Vertical", 18, 3, 41, 3))
sketch1.addConstraint(Sketcher.Constraint("Vertical", 19, 3, 42, 3))
sketch1.addConstraint(Sketcher.Constraint("Vertical", 48, 3, 51, 3))
sketch1.addConstraint(Sketcher.Constraint("Vertical", 58, 3, 59, 3))
sketch1.addConstraint(Sketcher.Constraint("Equal", 0, 4))
sketch1.addConstraint(Sketcher.Constraint("Radius", 2, Q("50 in")))
sketch1.addConstraint(Sketcher.Constraint("Diameter", 23, Q("0.4 in")))
sketch1.addConstraint(Sketcher.Constraint("Diameter", 12, Q("0.13 in")))
sketch1.addConstraint(Sketcher.Constraint("Diameter", 13, Q("0.15 in")))
sketch1.addConstraint(Sketcher.Constraint("Diameter", 15, Q("0.25 in")))
sketch1.addConstraint(Sketcher.Constraint("Diameter", 18, Q("0.123 in")))
sketch1.addConstraint(Sketcher.Constraint("Diameter", 39, Q("0.145 in")))
sketch1.addConstraint(Sketcher.Constraint("Diameter", 43, Q("0.177 in")))
sketch1.addConstraint(Sketcher.Constraint("DistanceX", 5, 1, 5, 2, Q("3.25 in")))
sketch1.addConstraint(Sketcher.Constraint("DistanceY", 0, 1, 0, 2, Q("1.75 in")))
sketch1.addConstraint(Sketcher.Constraint("DistanceX", -1, 1, 13, 3, Q("1.1 in")))
sketch1.addConstraint(Sketcher.Constraint("DistanceY", -1, 1, 4, 2, Q("5.5 in")))
sketch1.addConstraint(Sketcher.Constraint("DistanceX", -1, 1, 12, 3, Q("4.24 in")))
sketch1.addConstraint(Sketcher.Constraint("DistanceY", -1, 1, 12, 3, Q("3.07 in")))
sketch1.addConstraint(Sketcher.Constraint("DistanceY", -1, 1, 13, 3, Q("5.05 in")))
sketch1.addConstraint(Sketcher.Constraint("DistanceX", -1, 1, 14, 3, Q("3.01 in")))
sketch1.addConstraint(Sketcher.Constraint("DistanceY", -1, 1, 15, 3, Q("2.75 in")))
sketch1.addConstraint(Sketcher.Constraint("DistanceY", -1, 1, 16, 3, Q("2.57 in")))
sketch1.addConstraint(Sketcher.Constraint("DistanceY", -1, 1, 17, 3, Q("2.07 in")))
sketch1.addConstraint(Sketcher.Constraint("DistanceX", -1, 1, 19, 3, Q("4.59 in")))
sketch1.addConstraint(Sketcher.Constraint("DistanceY", -1, 1, 23, 3, Q("1.57 in")))
sketch1.addConstraint(Sketcher.Constraint("DistanceY", -1, 1, 24, 3, Q("1.65 in")))
sketch1.addConstraint(Sketcher.Constraint("DistanceX", -1, 1, 18, 3, Q("6.493 in")))
sketch1.addConstraint(Sketcher.Constraint("DistanceY", -1, 1, 18, 3, Q("1.514 in")))
sketch1.addConstraint(Sketcher.Constraint("DistanceY", -1, 1, 19, 3, Q("1.809 in")))
sketch1.addConstraint(Sketcher.Constraint("DistanceY", -1, 1, 26, 3, Q("3.625 in")))
sketch1.addConstraint(Sketcher.Constraint("DistanceX", -1, 1, 39, 3, Q("6.125 in")))
sketch1.addConstraint(Sketcher.Constraint("DistanceY", 41, 3, -1, 1, Q("1.444 in")))
sketch1.addConstraint(Sketcher.Constraint("Diameter", 38, 2.630513))
sketch1.addConstraint(Sketcher.Constraint("DistanceY", -1, 1, 38, 3, Q("0.5885 in")))
sketch1.addConstraint(Sketcher.Constraint("DistanceX", 1, 2, 1, 1, 129.296793))
sketch1.addConstraint(Sketcher.Constraint("DistanceY", -1, 1, 43, 3, 8.128151))
sketch1.addConstraint(Sketcher.Constraint("DistanceY", 55, 3, -1, 1, 0.761849))
sketch1.addConstraint(Sketcher.Constraint("DistanceX", -1, 1, 15, 3, 122.311793))
sketch1.addConstraint(Sketcher.Constraint("DistanceX", -1, 1, 21, 3, 61.838207))
sketch1.addConstraint(Sketcher.Constraint("DistanceX", -1, 1, 38, 3, 149.480693))
sketch1.addConstraint(Sketcher.Constraint("DistanceX", -1, 1, 40, 3, 121.464493))
sketch1.addConstraint(Sketcher.Constraint("DistanceX", -1, 1, 43, 3, 62.026926))
sketch1.addConstraint(Sketcher.Constraint("DistanceX", -1, 1, 48, 3, 64.176926))
sketch1.addConstraint(Sketcher.Constraint("DistanceY", 48, 3, -1, 1, 48.924364))
sketch1.addConstraint(Sketcher.Constraint("DistanceY", 51, 3, -1, 1, 55.924364))
sketch1.addConstraint(Sketcher.Constraint("DistanceX", 55, 3, -1, 1, 39.573074))
sketch1.addConstraint(Sketcher.Constraint("DistanceX", 56, 3, -1, 1, 84.023074))
sketch1.addConstraint(Sketcher.Constraint("DistanceX", 57, 3, -1, 1, 128.473074))
sketch1.addConstraint(Sketcher.Constraint("DistanceX", 58, 3, -1, 1, 33.323074))
pad1 = body.newObject("PartDesign::Pad", "Pad")
pad1.Profile = sketch1
pad1.Length = Q("0.25 in")
pad1.Reversed = True
doc.recompute()

fillet = body.newObject("PartDesign::Fillet", "Fillet")
fillet.Base = (pad1, edges_at(pad1, [
    (-170.572, 3.175, 95.25),
    (-170.572, 3.175, -95.25),
    (-41.275, 3.175, -139.7),
    (41.275, 3.175, -139.7),
    (170.572, 3.175, -95.25),
    (170.572, 3.175, 95.25),
    (41.275, 3.175, 139.7),
    (-41.275, 3.175, 139.7),
]))
fillet.Radius = Q("0.5 in")
doc.recompute()

fillet2 = body.newObject("PartDesign::Fillet", "Fillet001")
fillet2.Base = (fillet, edges_at(fillet, [
    (-41.275, 3.175, -95.25),
    (41.275, 3.175, -95.25),
    (41.275, 3.175, 95.25),
    (-41.275, 3.175, 95.25),
]))
fillet2.Radius = Q("0.25 in")

sketch2 = body.newObject("Sketcher::SketchObject", "Sketch001")
sketch2.AttachmentSupport = (doc.getObject("XZ_Plane"), [""])
sketch2.MapMode = "FlatFace"
sketch2.AttachmentOffset = App.Placement(Vector(0, 0, -0.25 * 25.4), App.Rotation())
sketch2.addGeometry(Part.Circle(Vector(-61.838207, -39.878, 0), Vector(0, 0, 1), 5.08), False)
sketch2.addConstraint(Sketcher.Constraint("Diameter", 0, Q("0.4 in")))
sketch2.addConstraint(Sketcher.Constraint("DistanceY", 0, 3, -1, 1, Q("1.57 in")))
sketch2.addConstraint(Sketcher.Constraint("DistanceX", 0, 3, -1, 1, 61.838207))
pocket1 = body.newObject("PartDesign::Pocket", "Pocket")
pocket1.Profile = sketch2
pocket1.Type = "ThroughAll"
pocket1.Reversed = True

doc.recompute()
